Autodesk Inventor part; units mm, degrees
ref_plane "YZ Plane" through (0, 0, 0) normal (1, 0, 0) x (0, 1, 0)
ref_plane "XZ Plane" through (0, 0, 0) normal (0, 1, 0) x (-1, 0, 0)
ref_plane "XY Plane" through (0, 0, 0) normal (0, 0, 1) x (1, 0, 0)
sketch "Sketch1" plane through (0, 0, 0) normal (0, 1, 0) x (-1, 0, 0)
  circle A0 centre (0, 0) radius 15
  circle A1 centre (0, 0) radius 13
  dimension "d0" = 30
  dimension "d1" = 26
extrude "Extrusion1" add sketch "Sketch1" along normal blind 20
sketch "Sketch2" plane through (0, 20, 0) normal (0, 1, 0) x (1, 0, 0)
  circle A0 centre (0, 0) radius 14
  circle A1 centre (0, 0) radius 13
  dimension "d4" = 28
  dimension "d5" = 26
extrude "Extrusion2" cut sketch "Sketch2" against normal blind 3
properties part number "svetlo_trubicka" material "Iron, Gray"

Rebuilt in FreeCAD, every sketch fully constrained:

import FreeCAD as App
import Part
import Sketcher
Q = App.Units.Quantity

doc = App.newDocument("Part")
body = doc.addObject("PartDesign::Body", "Body")

sketch1 = doc.addObject("Sketcher::SketchObject", "Sketch")
body.addObject(sketch1)
sketch1.AttachmentSupport = (doc.XZ_Plane, [""])
sketch1.MapMode = "FlatFace"
sketch1.addGeometry([
    Part.Circle(App.Vector(0, 0, 0), App.Vector(0, 0, 1), 15),
    Part.Circle(App.Vector(0, 0, 0), App.Vector(0, 0, 1), 13),
], False)
sketch1.addConstraint([
    Sketcher.Constraint("Coincident", 0, 3, -1, 1),
    Sketcher.Constraint("Coincident", 1, 3, -1, 1),
    Sketcher.Constraint("Diameter", 0, Q("30 mm")),
    Sketcher.Constraint("Diameter", 1, Q("26 mm")),
])
pad1 = doc.addObject("PartDesign::Pad", "Pad")
body.addObject(pad1)
pad1.Profile = sketch1
pad1.Length = 20
pad1.Reversed = True

sketch2 = doc.addObject("Sketcher::SketchObject", "Sketch001")
body.addObject(sketch2)
sketch2.AttachmentSupport = (doc.XZ_Plane, [""])
sketch2.MapMode = "FlatFace"
sketch2.AttachmentOffset = App.Placement(App.Vector(0, 0, -20), App.Rotation())
sketch2.addGeometry([
    Part.Circle(App.Vector(0, 0, 0), App.Vector(0, 0, 1), 14),
    Part.Circle(App.Vector(0, 0, 0), App.Vector(0, 0, 1), 13),
], False)
sketch2.addConstraint([
    Sketcher.Constraint("Coincident", 0, 3, -1, 1),
    Sketcher.Constraint("Coincident", 1, 3, -1, 1),
    Sketcher.Constraint("Diameter", 0, Q("28 mm")),
    Sketcher.Constraint("Diameter", 1, Q("26 mm")),
])
pocket1 = doc.addObject("PartDesign::Pocket", "Pocket")
body.addObject(pocket1)
pocket1.Profile = sketch2
pocket1.Length = 3
pocket1.Reversed = True

doc.recompute()
